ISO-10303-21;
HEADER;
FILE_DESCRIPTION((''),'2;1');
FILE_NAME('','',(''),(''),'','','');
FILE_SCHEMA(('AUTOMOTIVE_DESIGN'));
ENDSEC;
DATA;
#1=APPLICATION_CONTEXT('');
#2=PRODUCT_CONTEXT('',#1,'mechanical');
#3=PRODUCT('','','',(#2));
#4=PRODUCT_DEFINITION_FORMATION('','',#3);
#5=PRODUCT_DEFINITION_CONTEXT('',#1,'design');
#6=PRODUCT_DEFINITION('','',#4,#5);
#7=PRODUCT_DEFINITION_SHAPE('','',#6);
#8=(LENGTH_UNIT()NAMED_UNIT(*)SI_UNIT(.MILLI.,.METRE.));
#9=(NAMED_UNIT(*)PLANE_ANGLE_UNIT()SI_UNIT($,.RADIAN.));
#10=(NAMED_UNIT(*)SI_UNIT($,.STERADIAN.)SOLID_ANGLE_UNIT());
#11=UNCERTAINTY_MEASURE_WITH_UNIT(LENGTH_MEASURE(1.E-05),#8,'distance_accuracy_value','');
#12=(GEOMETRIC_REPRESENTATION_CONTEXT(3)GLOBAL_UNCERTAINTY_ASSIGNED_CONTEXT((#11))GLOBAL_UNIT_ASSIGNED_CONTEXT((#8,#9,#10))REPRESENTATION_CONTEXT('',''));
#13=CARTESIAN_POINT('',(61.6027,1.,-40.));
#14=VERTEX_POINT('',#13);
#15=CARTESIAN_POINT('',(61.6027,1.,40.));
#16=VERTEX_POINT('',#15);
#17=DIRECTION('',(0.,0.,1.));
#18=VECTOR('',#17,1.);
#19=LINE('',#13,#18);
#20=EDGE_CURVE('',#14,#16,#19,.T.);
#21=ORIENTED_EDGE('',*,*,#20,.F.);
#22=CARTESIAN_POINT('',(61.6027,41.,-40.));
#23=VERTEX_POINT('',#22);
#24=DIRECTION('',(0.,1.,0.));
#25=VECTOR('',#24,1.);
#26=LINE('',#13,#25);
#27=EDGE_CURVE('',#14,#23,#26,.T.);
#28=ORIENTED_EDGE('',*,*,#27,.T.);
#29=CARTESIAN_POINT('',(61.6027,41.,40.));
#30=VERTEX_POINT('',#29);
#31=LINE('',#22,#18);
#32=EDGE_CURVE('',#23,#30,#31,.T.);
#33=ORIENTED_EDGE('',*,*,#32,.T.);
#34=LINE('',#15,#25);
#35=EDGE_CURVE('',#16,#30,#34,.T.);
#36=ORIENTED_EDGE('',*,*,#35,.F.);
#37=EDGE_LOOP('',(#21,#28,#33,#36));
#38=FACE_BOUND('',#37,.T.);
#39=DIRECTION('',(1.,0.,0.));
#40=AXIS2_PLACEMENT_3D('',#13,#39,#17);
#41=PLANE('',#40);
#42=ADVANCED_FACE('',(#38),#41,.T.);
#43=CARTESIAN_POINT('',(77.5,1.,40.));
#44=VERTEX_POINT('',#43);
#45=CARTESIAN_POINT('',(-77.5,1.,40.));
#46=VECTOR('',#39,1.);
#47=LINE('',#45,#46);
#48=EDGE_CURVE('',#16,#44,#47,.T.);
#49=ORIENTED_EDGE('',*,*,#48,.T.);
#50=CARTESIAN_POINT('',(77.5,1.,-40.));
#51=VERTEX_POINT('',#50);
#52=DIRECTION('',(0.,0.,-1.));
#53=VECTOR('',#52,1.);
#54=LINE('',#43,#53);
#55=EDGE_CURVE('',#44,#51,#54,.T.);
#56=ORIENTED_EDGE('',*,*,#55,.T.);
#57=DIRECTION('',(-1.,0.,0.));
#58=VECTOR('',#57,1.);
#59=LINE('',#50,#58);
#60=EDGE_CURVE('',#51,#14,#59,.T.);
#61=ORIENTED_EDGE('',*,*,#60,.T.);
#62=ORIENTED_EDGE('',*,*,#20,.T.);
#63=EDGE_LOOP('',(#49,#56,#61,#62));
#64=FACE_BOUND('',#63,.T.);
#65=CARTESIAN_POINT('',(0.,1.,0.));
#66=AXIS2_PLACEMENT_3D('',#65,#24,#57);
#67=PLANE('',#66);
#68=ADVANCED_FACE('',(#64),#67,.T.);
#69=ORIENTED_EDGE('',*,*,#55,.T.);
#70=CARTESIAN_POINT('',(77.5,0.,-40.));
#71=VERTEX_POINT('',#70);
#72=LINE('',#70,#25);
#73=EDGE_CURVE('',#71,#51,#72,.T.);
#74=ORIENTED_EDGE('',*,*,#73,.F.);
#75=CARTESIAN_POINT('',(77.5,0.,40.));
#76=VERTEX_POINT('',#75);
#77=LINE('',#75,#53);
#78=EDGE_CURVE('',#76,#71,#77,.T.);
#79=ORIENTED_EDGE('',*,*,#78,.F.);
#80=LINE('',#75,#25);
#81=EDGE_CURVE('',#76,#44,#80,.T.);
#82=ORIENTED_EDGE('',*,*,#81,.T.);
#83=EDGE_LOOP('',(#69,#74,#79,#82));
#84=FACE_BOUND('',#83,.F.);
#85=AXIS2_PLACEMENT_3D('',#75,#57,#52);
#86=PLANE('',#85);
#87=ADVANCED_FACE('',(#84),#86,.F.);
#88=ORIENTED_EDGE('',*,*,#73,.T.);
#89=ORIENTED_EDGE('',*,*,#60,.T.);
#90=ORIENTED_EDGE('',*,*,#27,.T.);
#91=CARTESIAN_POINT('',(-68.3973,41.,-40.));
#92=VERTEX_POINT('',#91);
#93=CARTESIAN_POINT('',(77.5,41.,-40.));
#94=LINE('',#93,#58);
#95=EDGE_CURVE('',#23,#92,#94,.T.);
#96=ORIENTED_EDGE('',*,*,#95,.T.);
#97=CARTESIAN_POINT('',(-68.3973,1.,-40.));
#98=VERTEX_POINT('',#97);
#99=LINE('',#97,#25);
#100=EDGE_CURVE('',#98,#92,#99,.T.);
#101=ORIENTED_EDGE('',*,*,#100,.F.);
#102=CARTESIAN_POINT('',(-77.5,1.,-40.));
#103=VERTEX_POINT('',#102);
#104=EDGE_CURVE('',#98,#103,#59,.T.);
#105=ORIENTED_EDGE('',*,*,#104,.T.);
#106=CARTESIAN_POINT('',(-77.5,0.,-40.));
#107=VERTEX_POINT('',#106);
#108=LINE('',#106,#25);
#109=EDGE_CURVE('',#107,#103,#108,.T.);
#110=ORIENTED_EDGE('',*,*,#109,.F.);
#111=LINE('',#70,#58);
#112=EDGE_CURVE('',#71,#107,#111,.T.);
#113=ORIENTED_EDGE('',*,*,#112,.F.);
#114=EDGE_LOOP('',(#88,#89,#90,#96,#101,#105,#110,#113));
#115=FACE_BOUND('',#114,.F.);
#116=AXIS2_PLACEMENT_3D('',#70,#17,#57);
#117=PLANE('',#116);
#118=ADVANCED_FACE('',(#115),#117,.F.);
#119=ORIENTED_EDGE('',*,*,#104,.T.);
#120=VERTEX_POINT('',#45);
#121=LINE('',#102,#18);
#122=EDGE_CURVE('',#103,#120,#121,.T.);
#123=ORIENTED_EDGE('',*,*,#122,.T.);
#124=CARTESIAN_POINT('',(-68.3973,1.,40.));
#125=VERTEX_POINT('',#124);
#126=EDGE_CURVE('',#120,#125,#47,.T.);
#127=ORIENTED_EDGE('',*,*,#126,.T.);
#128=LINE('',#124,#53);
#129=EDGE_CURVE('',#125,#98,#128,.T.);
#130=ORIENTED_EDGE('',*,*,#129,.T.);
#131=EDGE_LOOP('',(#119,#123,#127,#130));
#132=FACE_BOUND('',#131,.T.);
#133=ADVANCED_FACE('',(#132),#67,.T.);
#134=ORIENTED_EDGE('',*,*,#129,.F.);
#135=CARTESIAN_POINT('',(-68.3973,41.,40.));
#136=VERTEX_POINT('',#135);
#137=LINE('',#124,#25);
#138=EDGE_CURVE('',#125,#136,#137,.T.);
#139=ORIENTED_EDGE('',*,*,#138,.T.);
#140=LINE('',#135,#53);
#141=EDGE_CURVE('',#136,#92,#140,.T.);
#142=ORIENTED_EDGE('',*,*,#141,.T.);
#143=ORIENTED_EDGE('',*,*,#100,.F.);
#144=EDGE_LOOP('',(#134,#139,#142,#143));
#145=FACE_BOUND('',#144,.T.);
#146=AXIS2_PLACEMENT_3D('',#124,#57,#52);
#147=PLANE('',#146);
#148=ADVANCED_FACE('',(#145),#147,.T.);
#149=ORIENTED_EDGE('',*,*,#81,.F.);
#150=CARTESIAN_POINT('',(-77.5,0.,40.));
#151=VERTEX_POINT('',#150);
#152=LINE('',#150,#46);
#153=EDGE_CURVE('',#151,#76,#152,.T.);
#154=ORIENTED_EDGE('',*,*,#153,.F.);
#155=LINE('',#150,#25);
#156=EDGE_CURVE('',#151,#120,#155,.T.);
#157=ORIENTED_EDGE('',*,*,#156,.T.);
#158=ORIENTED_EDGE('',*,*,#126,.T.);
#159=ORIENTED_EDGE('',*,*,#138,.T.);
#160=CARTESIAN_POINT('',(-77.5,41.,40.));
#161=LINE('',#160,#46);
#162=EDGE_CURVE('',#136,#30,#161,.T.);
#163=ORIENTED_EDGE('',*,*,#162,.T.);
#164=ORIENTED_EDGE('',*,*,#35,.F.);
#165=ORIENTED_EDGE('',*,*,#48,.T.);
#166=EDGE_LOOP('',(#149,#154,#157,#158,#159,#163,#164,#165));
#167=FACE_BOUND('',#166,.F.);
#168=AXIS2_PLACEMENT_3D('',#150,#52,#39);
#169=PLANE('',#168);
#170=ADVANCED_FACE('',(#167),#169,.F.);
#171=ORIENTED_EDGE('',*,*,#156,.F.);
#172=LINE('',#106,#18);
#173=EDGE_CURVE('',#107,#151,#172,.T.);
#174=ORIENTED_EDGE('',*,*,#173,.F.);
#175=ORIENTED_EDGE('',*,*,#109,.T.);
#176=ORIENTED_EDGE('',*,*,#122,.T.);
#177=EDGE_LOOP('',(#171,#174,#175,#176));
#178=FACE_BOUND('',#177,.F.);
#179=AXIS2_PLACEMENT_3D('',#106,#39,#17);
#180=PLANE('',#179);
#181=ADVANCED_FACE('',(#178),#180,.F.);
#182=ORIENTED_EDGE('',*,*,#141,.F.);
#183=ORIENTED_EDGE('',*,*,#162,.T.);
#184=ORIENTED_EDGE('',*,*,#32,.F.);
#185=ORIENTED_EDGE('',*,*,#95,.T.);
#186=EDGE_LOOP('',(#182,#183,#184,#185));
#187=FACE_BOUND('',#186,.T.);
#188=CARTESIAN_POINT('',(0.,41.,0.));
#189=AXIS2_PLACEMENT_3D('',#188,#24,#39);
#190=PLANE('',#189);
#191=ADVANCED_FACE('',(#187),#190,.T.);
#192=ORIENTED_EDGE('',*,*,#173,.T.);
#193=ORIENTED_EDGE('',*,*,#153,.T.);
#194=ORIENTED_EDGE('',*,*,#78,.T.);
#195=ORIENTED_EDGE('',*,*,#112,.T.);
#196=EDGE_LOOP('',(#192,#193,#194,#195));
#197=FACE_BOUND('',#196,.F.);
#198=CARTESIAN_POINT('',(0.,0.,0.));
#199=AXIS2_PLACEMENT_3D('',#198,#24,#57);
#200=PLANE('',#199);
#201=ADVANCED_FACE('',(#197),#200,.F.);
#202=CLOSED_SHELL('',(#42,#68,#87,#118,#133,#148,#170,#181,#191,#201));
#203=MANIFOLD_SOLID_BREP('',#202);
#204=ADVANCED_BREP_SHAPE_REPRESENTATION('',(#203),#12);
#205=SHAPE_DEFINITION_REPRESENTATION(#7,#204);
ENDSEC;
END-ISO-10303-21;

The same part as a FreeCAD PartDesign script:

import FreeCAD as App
import Part
import Sketcher
from FreeCAD import Vector

doc = App.newDocument("Part")
params = doc.addObject("Spreadsheet::Sheet", "Params")
for row, (alias, value) in enumerate([
    ("sketch1_width", "155 mm"),
    ("sketch1_height", "80 mm"),
    ("pad1_length", "1 mm"),
    ("sketch2_width", "130 mm"),
    ("sketch2_height", "80 mm"),
    ("pad2_length", "40 mm"),
], start=1):
    params.set(f"A{row}", alias)
    params.set(f"B{row}", "=" + value)
    params.setAlias(f"B{row}", alias)

body = doc.addObject("PartDesign::Body", "Body")

# Sketch on XZ plane
sketch1 = doc.addObject("Sketcher::SketchObject", "Sketch")
body.addObject(sketch1)
sketch1.AttachmentSupport = (doc.XZ_Plane, [""])
sketch1.MapMode = "FlatFace"
sketch1.addGeometry(Part.LineSegment(Vector(-77.5, -40, 0), Vector(-77.5, 40, 0)), False)
sketch1.addGeometry(Part.LineSegment(Vector(-77.5, 40, 0), Vector(77.5, 40, 0)), False)
sketch1.addGeometry(Part.LineSegment(Vector(77.5, 40, 0), Vector(77.5, -40, 0)), False)
sketch1.addGeometry(Part.LineSegment(Vector(77.5, -40, 0), Vector(-77.5, -40, 0)), False)
sketch1.addConstraint(Sketcher.Constraint("Coincident", 0, 2, 1, 1))
sketch1.addConstraint(Sketcher.Constraint("Coincident", 1, 2, 2, 1))
sketch1.addConstraint(Sketcher.Constraint("Coincident", 2, 2, 3, 1))
sketch1.addConstraint(Sketcher.Constraint("Coincident", 3, 2, 0, 1))
sketch1.addConstraint(Sketcher.Constraint("Vertical", 0))
sketch1.addConstraint(Sketcher.Constraint("Horizontal", 1))
sketch1.addConstraint(Sketcher.Constraint("Vertical", 2))
sketch1.addConstraint(Sketcher.Constraint("Horizontal", 3))
sketch1.addConstraint(Sketcher.Constraint("Symmetric", 0, 2, 2, 2, -1, 1))
sketch1.addConstraint(Sketcher.Constraint("DistanceX", 1, 1, 1, 2, 155.0))
sketch1.addConstraint(Sketcher.Constraint("DistanceY", 0, 1, 0, 2, 80.0))
sketch1.setExpression("Constraints[9]", "Params.sketch1_width")
sketch1.setExpression("Constraints[10]", "Params.sketch1_height")
pad1 = doc.addObject("PartDesign::Pad", "Pad")
body.addObject(pad1)
pad1.Profile = sketch1
pad1.setExpression("Length", "Params.pad1_length")
pad1.Reversed = True

# Sketch on XZ plane
sketch2 = doc.addObject("Sketcher::SketchObject", "Sketch001")
body.addObject(sketch2)
sketch2.AttachmentSupport = (doc.XZ_Plane, [""])
sketch2.MapMode = "FlatFace"
sketch2.AttachmentOffset = App.Placement(Vector(0, 0, -1), App.Rotation())
sketch2.addGeometry(Part.LineSegment(Vector(61.6027, 40, 0), Vector(61.6027, -40, 0)), False)
sketch2.addGeometry(Part.LineSegment(Vector(61.6027, -40, 0), Vector(-68.3973, -40, 0)), False)
sketch2.addGeometry(Part.LineSegment(Vector(-68.3973, -40, 0), Vector(-68.3973, 40, 0)), False)
sketch2.addGeometry(Part.LineSegment(Vector(-68.3973, 40, 0), Vector(61.6027, 40, 0)), False)
sketch2.addConstraint(Sketcher.Constraint("Coincident", 0, 2, 1, 1))
sketch2.addConstraint(Sketcher.Constraint("Coincident", 1, 2, 2, 1))
sketch2.addConstraint(Sketcher.Constraint("Coincident", 2, 2, 3, 1))
sketch2.addConstraint(Sketcher.Constraint("Coincident", 3, 2, 0, 1))
sketch2.addConstraint(Sketcher.Constraint("Vertical", 0))
sketch2.addConstraint(Sketcher.Constraint("Horizontal", 1))
sketch2.addConstraint(Sketcher.Constraint("Vertical", 2))
sketch2.addConstraint(Sketcher.Constraint("Horizontal", 3))
sketch2.addConstraint(Sketcher.Constraint("DistanceX", 1, 2, 1, 1, 130.0))
sketch2.addConstraint(Sketcher.Constraint("DistanceY", 0, 2, 0, 1, 80.0))
sketch2.addConstraint(Sketcher.Constraint("DistanceY", 0, 2, -1, 1, 40.0))
sketch2.addConstraint(Sketcher.Constraint("DistanceX", -1, 1, 0, 2, 61.6027))
sketch2.setExpression("Constraints[8]", "Params.sketch2_width")
sketch2.setExpression("Constraints[9]", "Params.sketch2_height")
pad2 = doc.addObject("PartDesign::Pad", "Pad001")
body.addObject(pad2)
pad2.Profile = sketch2
pad2.setExpression("Length", "Params.pad2_length")
pad2.Reversed = True

doc.recompute()
